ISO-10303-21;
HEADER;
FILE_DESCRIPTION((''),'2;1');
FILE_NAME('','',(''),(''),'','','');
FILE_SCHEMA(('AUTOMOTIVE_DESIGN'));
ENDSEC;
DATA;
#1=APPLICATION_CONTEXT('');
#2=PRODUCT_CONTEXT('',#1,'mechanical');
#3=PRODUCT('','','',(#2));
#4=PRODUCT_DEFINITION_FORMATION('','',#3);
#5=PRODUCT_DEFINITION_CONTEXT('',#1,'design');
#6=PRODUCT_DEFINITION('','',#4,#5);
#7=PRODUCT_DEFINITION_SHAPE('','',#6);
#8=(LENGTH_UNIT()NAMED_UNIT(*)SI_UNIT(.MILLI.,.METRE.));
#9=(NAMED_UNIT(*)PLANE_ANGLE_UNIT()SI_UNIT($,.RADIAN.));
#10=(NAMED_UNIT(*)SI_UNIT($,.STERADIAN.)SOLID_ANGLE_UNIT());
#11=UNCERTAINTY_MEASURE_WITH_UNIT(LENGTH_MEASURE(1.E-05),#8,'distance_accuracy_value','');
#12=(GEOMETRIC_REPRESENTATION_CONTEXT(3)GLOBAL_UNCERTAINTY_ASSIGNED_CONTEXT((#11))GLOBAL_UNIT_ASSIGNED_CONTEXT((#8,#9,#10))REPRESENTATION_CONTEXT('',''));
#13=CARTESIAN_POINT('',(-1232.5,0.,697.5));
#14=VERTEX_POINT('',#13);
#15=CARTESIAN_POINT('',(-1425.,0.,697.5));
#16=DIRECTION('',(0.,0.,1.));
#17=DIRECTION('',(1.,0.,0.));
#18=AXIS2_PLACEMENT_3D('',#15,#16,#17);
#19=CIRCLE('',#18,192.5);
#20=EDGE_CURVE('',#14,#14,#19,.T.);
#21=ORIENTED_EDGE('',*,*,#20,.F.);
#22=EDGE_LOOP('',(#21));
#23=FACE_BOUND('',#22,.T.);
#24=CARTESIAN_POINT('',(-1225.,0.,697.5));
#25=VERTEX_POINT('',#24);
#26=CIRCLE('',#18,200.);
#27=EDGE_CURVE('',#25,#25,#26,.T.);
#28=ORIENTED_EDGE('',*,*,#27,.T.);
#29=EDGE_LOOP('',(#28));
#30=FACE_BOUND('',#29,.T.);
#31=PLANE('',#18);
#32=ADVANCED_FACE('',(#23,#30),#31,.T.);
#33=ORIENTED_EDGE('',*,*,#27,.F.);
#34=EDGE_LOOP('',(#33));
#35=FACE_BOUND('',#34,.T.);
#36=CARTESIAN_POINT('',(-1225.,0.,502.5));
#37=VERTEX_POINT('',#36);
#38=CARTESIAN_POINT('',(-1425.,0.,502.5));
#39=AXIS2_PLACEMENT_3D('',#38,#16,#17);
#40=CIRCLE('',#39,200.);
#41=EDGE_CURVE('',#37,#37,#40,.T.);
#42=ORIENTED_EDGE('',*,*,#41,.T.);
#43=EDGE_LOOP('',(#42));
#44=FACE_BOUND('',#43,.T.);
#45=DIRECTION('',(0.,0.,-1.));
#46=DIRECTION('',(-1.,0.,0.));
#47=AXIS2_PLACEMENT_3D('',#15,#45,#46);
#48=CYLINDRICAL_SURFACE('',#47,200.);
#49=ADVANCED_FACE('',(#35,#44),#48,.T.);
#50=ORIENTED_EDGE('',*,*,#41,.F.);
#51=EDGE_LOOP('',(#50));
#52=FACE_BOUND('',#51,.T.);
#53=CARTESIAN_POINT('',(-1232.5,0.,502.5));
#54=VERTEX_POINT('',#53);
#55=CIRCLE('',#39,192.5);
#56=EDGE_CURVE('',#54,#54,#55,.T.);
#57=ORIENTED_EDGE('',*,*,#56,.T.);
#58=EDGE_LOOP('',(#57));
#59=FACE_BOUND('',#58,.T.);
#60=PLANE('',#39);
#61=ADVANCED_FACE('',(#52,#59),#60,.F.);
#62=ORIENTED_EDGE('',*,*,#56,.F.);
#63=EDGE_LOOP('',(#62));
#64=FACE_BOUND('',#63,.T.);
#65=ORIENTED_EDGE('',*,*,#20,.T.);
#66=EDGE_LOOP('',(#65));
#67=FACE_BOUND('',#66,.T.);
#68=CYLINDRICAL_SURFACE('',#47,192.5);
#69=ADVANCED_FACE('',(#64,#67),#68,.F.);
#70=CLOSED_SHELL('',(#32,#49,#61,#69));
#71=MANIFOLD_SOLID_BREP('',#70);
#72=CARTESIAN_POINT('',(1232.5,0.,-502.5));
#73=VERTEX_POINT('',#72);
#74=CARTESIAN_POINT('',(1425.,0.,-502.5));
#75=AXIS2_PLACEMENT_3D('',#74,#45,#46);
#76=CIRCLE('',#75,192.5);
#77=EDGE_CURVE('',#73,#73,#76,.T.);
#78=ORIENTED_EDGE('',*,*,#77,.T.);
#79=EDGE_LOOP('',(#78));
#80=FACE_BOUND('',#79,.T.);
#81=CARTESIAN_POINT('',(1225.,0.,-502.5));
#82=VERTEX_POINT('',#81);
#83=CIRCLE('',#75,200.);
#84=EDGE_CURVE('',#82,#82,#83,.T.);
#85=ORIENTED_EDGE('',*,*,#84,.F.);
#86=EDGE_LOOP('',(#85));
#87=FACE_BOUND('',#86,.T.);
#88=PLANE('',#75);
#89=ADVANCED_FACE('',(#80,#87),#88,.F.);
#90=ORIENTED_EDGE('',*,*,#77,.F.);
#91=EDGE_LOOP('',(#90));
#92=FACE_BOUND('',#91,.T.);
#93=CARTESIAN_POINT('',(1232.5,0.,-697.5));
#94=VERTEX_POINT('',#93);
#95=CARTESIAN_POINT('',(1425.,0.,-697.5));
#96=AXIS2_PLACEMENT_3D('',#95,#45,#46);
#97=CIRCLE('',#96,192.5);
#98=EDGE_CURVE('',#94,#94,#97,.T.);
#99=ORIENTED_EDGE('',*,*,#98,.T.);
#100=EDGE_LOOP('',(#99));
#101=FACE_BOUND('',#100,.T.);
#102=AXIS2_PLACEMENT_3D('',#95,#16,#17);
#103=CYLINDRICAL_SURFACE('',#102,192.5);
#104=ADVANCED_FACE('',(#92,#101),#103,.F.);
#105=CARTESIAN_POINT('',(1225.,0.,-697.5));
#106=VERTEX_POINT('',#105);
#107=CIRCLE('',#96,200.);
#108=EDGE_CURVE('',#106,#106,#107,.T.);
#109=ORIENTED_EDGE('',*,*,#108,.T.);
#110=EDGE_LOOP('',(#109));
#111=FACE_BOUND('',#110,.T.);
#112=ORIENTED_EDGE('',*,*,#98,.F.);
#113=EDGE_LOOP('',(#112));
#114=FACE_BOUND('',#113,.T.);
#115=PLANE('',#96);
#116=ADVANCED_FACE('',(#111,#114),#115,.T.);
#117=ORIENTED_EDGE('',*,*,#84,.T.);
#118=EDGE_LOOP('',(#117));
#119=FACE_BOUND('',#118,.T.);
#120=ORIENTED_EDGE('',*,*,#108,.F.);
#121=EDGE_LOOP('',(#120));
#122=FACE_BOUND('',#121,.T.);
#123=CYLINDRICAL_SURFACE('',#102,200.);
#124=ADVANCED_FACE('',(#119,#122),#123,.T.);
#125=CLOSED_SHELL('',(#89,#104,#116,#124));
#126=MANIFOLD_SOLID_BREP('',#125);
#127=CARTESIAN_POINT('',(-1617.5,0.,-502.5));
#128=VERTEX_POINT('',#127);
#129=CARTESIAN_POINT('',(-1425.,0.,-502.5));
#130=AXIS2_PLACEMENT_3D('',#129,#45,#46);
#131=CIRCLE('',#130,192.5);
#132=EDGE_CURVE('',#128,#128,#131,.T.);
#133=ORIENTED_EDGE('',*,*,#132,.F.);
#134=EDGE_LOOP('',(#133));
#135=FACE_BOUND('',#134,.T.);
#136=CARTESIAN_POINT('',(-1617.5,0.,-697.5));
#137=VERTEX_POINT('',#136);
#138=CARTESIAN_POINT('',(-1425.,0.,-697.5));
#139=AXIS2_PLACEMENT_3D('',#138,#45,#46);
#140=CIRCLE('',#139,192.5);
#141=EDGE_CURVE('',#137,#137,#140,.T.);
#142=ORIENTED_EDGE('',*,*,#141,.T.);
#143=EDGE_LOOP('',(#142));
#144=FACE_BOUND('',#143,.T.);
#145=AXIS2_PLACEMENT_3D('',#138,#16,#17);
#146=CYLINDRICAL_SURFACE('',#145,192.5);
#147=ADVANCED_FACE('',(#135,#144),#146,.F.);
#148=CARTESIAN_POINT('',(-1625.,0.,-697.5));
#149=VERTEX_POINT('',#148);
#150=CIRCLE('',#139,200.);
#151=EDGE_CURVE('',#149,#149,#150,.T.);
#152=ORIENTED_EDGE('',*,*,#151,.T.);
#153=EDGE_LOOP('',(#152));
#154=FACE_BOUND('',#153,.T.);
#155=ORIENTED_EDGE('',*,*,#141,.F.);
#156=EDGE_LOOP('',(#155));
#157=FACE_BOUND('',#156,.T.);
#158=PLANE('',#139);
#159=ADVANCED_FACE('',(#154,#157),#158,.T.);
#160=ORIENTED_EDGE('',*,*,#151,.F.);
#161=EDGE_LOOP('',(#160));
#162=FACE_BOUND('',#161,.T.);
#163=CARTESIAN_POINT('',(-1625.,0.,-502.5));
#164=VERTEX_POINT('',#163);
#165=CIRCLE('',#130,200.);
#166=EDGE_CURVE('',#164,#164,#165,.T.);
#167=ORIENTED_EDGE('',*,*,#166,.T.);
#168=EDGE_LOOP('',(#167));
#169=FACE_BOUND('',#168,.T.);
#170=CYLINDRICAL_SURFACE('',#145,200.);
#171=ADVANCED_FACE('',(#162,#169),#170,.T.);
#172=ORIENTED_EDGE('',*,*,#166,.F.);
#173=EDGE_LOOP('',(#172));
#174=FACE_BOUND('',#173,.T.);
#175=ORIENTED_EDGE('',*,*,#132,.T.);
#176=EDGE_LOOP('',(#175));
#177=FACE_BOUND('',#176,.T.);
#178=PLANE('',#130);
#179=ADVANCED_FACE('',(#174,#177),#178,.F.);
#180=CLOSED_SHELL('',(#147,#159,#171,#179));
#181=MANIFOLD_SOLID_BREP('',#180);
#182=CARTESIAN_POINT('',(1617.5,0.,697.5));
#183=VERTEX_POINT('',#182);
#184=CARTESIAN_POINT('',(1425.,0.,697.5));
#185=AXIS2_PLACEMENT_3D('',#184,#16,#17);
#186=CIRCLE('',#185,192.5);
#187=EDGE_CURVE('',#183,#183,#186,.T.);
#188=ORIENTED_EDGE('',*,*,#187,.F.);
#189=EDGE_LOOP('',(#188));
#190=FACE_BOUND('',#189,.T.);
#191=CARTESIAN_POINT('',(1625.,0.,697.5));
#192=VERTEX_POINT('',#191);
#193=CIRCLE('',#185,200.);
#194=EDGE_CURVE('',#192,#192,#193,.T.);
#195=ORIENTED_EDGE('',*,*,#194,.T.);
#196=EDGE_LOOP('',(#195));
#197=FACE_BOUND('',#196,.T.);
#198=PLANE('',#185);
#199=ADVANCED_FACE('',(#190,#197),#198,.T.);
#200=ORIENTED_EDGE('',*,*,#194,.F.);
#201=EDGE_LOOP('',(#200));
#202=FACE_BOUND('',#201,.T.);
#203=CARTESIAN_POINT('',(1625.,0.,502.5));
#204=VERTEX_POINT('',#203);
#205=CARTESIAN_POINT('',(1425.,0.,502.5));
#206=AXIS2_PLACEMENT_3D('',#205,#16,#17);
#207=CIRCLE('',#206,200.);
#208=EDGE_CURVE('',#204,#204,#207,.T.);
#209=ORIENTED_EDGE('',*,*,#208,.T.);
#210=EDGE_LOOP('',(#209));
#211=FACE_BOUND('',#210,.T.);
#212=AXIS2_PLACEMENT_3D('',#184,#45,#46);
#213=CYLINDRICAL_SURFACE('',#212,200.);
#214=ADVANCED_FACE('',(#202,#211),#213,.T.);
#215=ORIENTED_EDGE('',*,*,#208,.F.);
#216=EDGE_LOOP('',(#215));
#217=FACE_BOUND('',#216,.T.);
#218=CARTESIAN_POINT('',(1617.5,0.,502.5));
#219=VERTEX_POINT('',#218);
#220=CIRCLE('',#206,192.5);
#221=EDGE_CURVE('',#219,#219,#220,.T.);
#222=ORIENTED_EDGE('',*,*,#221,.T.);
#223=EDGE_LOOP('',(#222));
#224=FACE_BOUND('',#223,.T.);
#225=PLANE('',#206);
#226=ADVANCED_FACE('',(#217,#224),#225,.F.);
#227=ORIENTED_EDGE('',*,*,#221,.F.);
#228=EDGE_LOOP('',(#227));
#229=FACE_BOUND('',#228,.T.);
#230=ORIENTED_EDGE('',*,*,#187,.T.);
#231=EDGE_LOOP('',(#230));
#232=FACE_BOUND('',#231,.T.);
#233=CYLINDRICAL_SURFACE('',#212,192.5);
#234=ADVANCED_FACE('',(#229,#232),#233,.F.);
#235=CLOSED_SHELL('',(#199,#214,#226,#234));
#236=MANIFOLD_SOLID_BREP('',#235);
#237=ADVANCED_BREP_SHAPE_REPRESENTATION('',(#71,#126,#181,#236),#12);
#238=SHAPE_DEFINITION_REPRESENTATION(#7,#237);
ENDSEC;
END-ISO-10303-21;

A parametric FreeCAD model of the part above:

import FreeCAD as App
import Part
import Sketcher
Q = App.Units.Quantity

doc = App.newDocument("Part")
body = doc.addObject("PartDesign::Body", "Body")

# Sketch on XY plane
sketch1 = body.newObject("Sketcher::SketchObject", "Sketch")
sketch1.AttachmentSupport = (doc.getObject("XY_Plane"), [""])
sketch1.MapMode = "FlatFace"
sketch1.AttachmentOffset = App.Placement(App.Vector(0, 0, 600), App.Rotation())
sketch1.addGeometry([
    Part.Circle(App.Vector(-1425, 0, 0), App.Vector(0, 0, 1), 200),
    Part.Circle(App.Vector(-1425, 0, 0), App.Vector(0, 0, 1), 192),
], False)
sketch1.addConstraint([
    Sketcher.Constraint("Coincident", 1, 3, 0, 3),
    Sketcher.Constraint("PointOnObject", 0, 3, -1),
    Sketcher.Constraint("Diameter", 0, Q("400 mm")),
    Sketcher.Constraint("Diameter", 1, Q("385 mm")),
    Sketcher.Constraint("DistanceX", 0, 3, -1, 1, Q("1425 mm")),
])
pad1 = body.newObject("PartDesign::Pad", "Pad")
pad1.Profile = sketch1
pad1.Length = 195
pad1.Midplane = True
body2 = doc.addObject("PartDesign::Body", "Body001")

# Sketch on XY plane
sketch2 = body2.newObject("Sketcher::SketchObject", "Sketch001")
sketch2.AttachmentSupport = (doc.getObject("XY_Plane001"), [""])
sketch2.MapMode = "FlatFace"
sketch2.AttachmentOffset = App.Placement(App.Vector(0, 0, 600), App.Rotation())
sketch2.addGeometry([
    Part.Circle(App.Vector(1425, 0, 0), App.Vector(0, 0, 1), 200),
    Part.Circle(App.Vector(1425, 0, 0), App.Vector(0, 0, 1), 192),
], False)
sketch2.addConstraint([
    Sketcher.Constraint("Coincident", 1, 3, 0, 3),
    Sketcher.Constraint("PointOnObject", 0, 3, -1),
    Sketcher.Constraint("Diameter", 0, Q("400 mm")),
    Sketcher.Constraint("Diameter", 1, Q("385 mm")),
    Sketcher.Constraint("DistanceX", -1, 1, 0, 3, Q("1425 mm")),
])
pad2 = body2.newObject("PartDesign::Pad", "Pad001")
pad2.Profile = sketch2
pad2.Length = 195
pad2.Midplane = True
body3 = doc.addObject("PartDesign::Body", "Body002")

# Sketch on XY plane
sketch3 = body3.newObject("Sketcher::SketchObject", "Sketch002")
sketch3.AttachmentSupport = (doc.getObject("XY_Plane002"), [""])
sketch3.MapMode = "FlatFace"
sketch3.AttachmentOffset = App.Placement(App.Vector(0, 0, -600), App.Rotation())
sketch3.addGeometry([
    Part.Circle(App.Vector(1425, 0, 0), App.Vector(0, 0, 1), 200),
    Part.Circle(App.Vector(1425, 0, 0), App.Vector(0, 0, 1), 192),
], False)
sketch3.addConstraint([
    Sketcher.Constraint("Coincident", 1, 3, 0, 3),
    Sketcher.Constraint("PointOnObject", 0, 3, -1),
    Sketcher.Constraint("Diameter", 0, Q("400 mm")),
    Sketcher.Constraint("Diameter", 1, Q("385 mm")),
    Sketcher.Constraint("DistanceX", -1, 1, 0, 3, Q("1425 mm")),
])
pad3 = body3.newObject("PartDesign::Pad", "Pad002")
pad3.Profile = sketch3
pad3.Length = 195
pad3.Midplane = True
body4 = doc.addObject("PartDesign::Body", "Body003")

# Sketch on XY plane
sketch4 = body4.newObject("Sketcher::SketchObject", "Sketch003")
sketch4.AttachmentSupport = (doc.getObject("XY_Plane003"), [""])
sketch4.MapMode = "FlatFace"
sketch4.AttachmentOffset = App.Placement(App.Vector(0, 0, -600), App.Rotation())
sketch4.addGeometry([
    Part.Circle(App.Vector(-1425, 0, 0), App.Vector(0, 0, 1), 200),
    Part.Circle(App.Vector(-1425, 0, 0), App.Vector(0, 0, 1), 192),
], False)
sketch4.addConstraint([
    Sketcher.Constraint("Coincident", 1, 3, 0, 3),
    Sketcher.Constraint("PointOnObject", 0, 3, -1),
    Sketcher.Constraint("Diameter", 0, Q("400 mm")),
    Sketcher.Constraint("Diameter", 1, Q("385 mm")),
    Sketcher.Constraint("DistanceX", 0, 3, -1, 1, Q("1425 mm")),
])
pad4 = body4.newObject("PartDesign::Pad", "Pad003")
pad4.Profile = sketch4
pad4.Length = 195
pad4.Midplane = True

doc.recompute()
